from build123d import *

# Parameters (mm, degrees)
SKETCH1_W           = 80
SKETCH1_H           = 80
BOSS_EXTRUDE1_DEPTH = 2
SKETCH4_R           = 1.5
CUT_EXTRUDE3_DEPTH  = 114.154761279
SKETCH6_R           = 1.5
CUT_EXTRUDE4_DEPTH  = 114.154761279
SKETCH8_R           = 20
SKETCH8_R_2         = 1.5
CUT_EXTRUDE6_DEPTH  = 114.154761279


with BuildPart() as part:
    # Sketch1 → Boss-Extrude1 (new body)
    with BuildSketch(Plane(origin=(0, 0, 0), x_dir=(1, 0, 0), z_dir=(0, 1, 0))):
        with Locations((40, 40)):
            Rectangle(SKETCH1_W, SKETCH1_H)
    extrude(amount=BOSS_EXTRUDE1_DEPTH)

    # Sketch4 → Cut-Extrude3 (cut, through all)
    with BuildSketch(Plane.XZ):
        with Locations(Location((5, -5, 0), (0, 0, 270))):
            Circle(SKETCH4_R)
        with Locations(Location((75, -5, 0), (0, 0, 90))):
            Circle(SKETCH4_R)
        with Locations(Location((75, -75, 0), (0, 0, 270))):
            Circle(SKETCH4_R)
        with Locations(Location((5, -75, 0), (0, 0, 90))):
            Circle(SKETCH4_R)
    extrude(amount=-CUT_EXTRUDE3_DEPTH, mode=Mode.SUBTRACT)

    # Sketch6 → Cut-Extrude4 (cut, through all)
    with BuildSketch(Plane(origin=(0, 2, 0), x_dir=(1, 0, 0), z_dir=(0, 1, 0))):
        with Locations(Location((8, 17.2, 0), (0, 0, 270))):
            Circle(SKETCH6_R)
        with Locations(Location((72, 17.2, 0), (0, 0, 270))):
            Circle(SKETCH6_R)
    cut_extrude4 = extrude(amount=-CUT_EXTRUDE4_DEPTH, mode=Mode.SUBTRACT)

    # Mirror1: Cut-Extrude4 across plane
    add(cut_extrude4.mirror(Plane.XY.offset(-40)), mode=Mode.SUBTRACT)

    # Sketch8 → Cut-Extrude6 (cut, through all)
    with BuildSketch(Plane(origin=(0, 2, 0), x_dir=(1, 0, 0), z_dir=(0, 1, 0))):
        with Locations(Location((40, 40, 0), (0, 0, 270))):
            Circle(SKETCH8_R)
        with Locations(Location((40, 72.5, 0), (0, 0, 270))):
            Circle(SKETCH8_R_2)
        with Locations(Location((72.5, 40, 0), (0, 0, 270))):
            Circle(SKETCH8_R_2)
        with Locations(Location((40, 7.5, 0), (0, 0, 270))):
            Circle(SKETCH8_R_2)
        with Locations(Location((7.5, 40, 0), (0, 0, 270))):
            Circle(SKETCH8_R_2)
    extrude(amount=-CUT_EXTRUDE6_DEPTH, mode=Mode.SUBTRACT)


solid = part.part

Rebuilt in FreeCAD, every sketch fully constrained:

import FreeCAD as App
import Part
import Sketcher


def add_polygon(sketch, points):
    """Adds a closed chain of lines whose ends are joined by coincident constraints."""
    first, n = sketch.GeometryCount, len(points)
    for a, b in zip(points, points[1:] + points[:1]):
        sketch.addGeometry(Part.LineSegment(App.Vector(*a, 0), App.Vector(*b, 0)), False)
    for i in range(n):
        sketch.addConstraint(Sketcher.Constraint("Coincident", first + i, 2, first + (i + 1) % n, 1))

doc = App.newDocument("Part")
body = doc.addObject("PartDesign::Body", "Body")

# Sketch on XZ plane
sketch1 = body.newObject("Sketcher::SketchObject", "Sketch")
sketch1.AttachmentSupport = (doc.getObject("XZ_Plane"), [""])
sketch1.MapMode = "FlatFace"
add_polygon(sketch1, [(0, -80), (0, 0), (80, 0), (80, -80)])  # lines 0-3
sketch1.addConstraint(Sketcher.Constraint("Vertical", 0))
sketch1.addConstraint(Sketcher.Constraint("Horizontal", 1))
sketch1.addConstraint(Sketcher.Constraint("Vertical", 2))
sketch1.addConstraint(Sketcher.Constraint("Horizontal", 3))
sketch1.addConstraint(Sketcher.Constraint("Coincident", 0, 2, -1, 1))
sketch1.addConstraint(Sketcher.Constraint("Equal", 3, 0))
sketch1.addConstraint(Sketcher.Constraint("DistanceX", 1, 1, 1, 2, 80.0))
pad1 = body.newObject("PartDesign::Pad", "Pad")
pad1.Profile = sketch1
pad1.Length = 2
pad1.Reversed = True

# Sketch on XZ plane
sketch2 = body.newObject("Sketcher::SketchObject", "Sketch001")
sketch2.AttachmentSupport = (doc.getObject("XZ_Plane"), [""])
sketch2.MapMode = "FlatFace"
sketch2.addGeometry(Part.Circle(App.Vector(5, -5, 0), App.Vector(0, 0, 1), 1.5), False)
sketch2.addGeometry(Part.Circle(App.Vector(75, -5, 0), App.Vector(0, 0, 1), 1.5), False)
sketch2.addGeometry(Part.Circle(App.Vector(75, -75, 0), App.Vector(0, 0, 1), 1.5), False)
sketch2.addGeometry(Part.Circle(App.Vector(5, -75, 0), App.Vector(0, 0, 1), 1.5), False)
sketch2.addConstraint(Sketcher.Constraint("Equal", 0, 1))
sketch2.addConstraint(Sketcher.Constraint("Equal", 1, 2))
sketch2.addConstraint(Sketcher.Constraint("Equal", 2, 3))
sketch2.addConstraint(Sketcher.Constraint("Horizontal", 0, 3, 1, 3))
sketch2.addConstraint(Sketcher.Constraint("Horizontal", 2, 3, 3, 3))
sketch2.addConstraint(Sketcher.Constraint("Vertical", 1, 3, 2, 3))
sketch2.addConstraint(Sketcher.Constraint("Vertical", 0, 3, 3, 3))
sketch2.addConstraint(Sketcher.Constraint("Diameter", 0, 3.0))
sketch2.addConstraint(Sketcher.Constraint("DistanceX", -1, 1, 0, 3, 5.0))
sketch2.addConstraint(Sketcher.Constraint("DistanceY", 0, 3, -1, 1, 5.0))
sketch2.addConstraint(Sketcher.Constraint("DistanceX", -1, 1, 1, 3, 75.0))
sketch2.addConstraint(Sketcher.Constraint("DistanceY", 2, 3, -1, 1, 75.0))
pocket1 = body.newObject("PartDesign::Pocket", "Pocket")
pocket1.Profile = sketch2
pocket1.Type = "ThroughAll"

# Sketch on XZ plane
sketch3 = body.newObject("Sketcher::SketchObject", "Sketch002")
sketch3.AttachmentSupport = (doc.getObject("XZ_Plane"), [""])
sketch3.MapMode = "FlatFace"
sketch3.AttachmentOffset = App.Placement(App.Vector(0, 0, -2), App.Rotation())
sketch3.addGeometry(Part.Circle(App.Vector(8, -17.2, 0), App.Vector(0, 0, 1), 1.5), False)
sketch3.addGeometry(Part.Circle(App.Vector(72, -17.2, 0), App.Vector(0, 0, 1), 1.5), False)
sketch3.addConstraint(Sketcher.Constraint("Equal", 0, 1))
sketch3.addConstraint(Sketcher.Constraint("Horizontal", 0, 3, 1, 3))
sketch3.addConstraint(Sketcher.Constraint("Diameter", 0, 3.0))
sketch3.addConstraint(Sketcher.Constraint("DistanceX", -1, 1, 0, 3, 8.0))
sketch3.addConstraint(Sketcher.Constraint("DistanceX", -1, 1, 1, 3, 72.0))
sketch3.addConstraint(Sketcher.Constraint("DistanceY", 0, 3, -1, 1, 17.2))
pocket2 = body.newObject("PartDesign::Pocket", "Pocket001")
pocket2.Profile = sketch3
pocket2.Type = "ThroughAll"
pocket2.Reversed = True
doc.recompute()

datumplane = body.newObject("PartDesign::Plane", "DatumPlane")
datumplane.AttachmentSupport = (doc.getObject("XY_Plane"), [""])
datumplane.MapMode = "FlatFace"
datumplane.AttachmentOffset = App.Placement(App.Vector(0, 0, -40), App.Rotation())
mirrored = body.newObject("PartDesign::Mirrored", "Mirrored")
mirrored.Originals = [pocket2]
mirrored.MirrorPlane = (datumplane, [""])
body.Tip = mirrored

# Sketch on XZ plane
sketch4 = body.newObject("Sketcher::SketchObject", "Sketch003")
sketch4.AttachmentSupport = (doc.getObject("XZ_Plane"), [""])
sketch4.MapMode = "FlatFace"
sketch4.AttachmentOffset = App.Placement(App.Vector(0, 0, -2), App.Rotation())
sketch4.addGeometry(Part.Circle(App.Vector(40, -40, 0), App.Vector(0, 0, 1), 20), False)
sketch4.addGeometry(Part.Circle(App.Vector(40, -72.5, 0), App.Vector(0, 0, 1), 1.5), False)
sketch4.addGeometry(Part.Circle(App.Vector(72.5, -40, 0), App.Vector(0, 0, 1), 1.5), False)
sketch4.addGeometry(Part.Circle(App.Vector(40, -7.5, 0), App.Vector(0, 0, 1), 1.5), False)
sketch4.addGeometry(Part.Circle(App.Vector(7.5, -40, 0), App.Vector(0, 0, 1), 1.5), False)
sketch4.addConstraint(Sketcher.Constraint("Equal", 1, 2))
sketch4.addConstraint(Sketcher.Constraint("Equal", 2, 3))
sketch4.addConstraint(Sketcher.Constraint("Equal", 3, 4))
sketch4.addConstraint(Sketcher.Constraint("Horizontal", 0, 3, 2, 3))
sketch4.addConstraint(Sketcher.Constraint("Horizontal", 2, 3, 4, 3))
sketch4.addConstraint(Sketcher.Constraint("Vertical", 0, 3, 1, 3))
sketch4.addConstraint(Sketcher.Constraint("Vertical", 1, 3, 3, 3))
sketch4.addConstraint(Sketcher.Constraint("Diameter", 0, 40.0))
sketch4.addConstraint(Sketcher.Constraint("Diameter", 1, 3.0))
sketch4.addConstraint(Sketcher.Constraint("DistanceX", -1, 1, 0, 3, 40.0))
sketch4.addConstraint(Sketcher.Constraint("DistanceY", 0, 3, -1, 1, 40.0))
sketch4.addConstraint(Sketcher.Constraint("DistanceY", 1, 3, 3, 3, 65.0))
sketch4.addConstraint(Sketcher.Constraint("DistanceX", 4, 3, 2, 3, 65.0))
sketch4.addConstraint(Sketcher.Constraint("DistanceY", 1, 3, -1, 1, 72.5))
sketch4.addConstraint(Sketcher.Constraint("DistanceX", -1, 1, 2, 3, 72.5))
pocket3 = body.newObject("PartDesign::Pocket", "Pocket002")
pocket3.Profile = sketch4
pocket3.Type = "ThroughAll"
pocket3.Reversed = True

doc.recompute()
